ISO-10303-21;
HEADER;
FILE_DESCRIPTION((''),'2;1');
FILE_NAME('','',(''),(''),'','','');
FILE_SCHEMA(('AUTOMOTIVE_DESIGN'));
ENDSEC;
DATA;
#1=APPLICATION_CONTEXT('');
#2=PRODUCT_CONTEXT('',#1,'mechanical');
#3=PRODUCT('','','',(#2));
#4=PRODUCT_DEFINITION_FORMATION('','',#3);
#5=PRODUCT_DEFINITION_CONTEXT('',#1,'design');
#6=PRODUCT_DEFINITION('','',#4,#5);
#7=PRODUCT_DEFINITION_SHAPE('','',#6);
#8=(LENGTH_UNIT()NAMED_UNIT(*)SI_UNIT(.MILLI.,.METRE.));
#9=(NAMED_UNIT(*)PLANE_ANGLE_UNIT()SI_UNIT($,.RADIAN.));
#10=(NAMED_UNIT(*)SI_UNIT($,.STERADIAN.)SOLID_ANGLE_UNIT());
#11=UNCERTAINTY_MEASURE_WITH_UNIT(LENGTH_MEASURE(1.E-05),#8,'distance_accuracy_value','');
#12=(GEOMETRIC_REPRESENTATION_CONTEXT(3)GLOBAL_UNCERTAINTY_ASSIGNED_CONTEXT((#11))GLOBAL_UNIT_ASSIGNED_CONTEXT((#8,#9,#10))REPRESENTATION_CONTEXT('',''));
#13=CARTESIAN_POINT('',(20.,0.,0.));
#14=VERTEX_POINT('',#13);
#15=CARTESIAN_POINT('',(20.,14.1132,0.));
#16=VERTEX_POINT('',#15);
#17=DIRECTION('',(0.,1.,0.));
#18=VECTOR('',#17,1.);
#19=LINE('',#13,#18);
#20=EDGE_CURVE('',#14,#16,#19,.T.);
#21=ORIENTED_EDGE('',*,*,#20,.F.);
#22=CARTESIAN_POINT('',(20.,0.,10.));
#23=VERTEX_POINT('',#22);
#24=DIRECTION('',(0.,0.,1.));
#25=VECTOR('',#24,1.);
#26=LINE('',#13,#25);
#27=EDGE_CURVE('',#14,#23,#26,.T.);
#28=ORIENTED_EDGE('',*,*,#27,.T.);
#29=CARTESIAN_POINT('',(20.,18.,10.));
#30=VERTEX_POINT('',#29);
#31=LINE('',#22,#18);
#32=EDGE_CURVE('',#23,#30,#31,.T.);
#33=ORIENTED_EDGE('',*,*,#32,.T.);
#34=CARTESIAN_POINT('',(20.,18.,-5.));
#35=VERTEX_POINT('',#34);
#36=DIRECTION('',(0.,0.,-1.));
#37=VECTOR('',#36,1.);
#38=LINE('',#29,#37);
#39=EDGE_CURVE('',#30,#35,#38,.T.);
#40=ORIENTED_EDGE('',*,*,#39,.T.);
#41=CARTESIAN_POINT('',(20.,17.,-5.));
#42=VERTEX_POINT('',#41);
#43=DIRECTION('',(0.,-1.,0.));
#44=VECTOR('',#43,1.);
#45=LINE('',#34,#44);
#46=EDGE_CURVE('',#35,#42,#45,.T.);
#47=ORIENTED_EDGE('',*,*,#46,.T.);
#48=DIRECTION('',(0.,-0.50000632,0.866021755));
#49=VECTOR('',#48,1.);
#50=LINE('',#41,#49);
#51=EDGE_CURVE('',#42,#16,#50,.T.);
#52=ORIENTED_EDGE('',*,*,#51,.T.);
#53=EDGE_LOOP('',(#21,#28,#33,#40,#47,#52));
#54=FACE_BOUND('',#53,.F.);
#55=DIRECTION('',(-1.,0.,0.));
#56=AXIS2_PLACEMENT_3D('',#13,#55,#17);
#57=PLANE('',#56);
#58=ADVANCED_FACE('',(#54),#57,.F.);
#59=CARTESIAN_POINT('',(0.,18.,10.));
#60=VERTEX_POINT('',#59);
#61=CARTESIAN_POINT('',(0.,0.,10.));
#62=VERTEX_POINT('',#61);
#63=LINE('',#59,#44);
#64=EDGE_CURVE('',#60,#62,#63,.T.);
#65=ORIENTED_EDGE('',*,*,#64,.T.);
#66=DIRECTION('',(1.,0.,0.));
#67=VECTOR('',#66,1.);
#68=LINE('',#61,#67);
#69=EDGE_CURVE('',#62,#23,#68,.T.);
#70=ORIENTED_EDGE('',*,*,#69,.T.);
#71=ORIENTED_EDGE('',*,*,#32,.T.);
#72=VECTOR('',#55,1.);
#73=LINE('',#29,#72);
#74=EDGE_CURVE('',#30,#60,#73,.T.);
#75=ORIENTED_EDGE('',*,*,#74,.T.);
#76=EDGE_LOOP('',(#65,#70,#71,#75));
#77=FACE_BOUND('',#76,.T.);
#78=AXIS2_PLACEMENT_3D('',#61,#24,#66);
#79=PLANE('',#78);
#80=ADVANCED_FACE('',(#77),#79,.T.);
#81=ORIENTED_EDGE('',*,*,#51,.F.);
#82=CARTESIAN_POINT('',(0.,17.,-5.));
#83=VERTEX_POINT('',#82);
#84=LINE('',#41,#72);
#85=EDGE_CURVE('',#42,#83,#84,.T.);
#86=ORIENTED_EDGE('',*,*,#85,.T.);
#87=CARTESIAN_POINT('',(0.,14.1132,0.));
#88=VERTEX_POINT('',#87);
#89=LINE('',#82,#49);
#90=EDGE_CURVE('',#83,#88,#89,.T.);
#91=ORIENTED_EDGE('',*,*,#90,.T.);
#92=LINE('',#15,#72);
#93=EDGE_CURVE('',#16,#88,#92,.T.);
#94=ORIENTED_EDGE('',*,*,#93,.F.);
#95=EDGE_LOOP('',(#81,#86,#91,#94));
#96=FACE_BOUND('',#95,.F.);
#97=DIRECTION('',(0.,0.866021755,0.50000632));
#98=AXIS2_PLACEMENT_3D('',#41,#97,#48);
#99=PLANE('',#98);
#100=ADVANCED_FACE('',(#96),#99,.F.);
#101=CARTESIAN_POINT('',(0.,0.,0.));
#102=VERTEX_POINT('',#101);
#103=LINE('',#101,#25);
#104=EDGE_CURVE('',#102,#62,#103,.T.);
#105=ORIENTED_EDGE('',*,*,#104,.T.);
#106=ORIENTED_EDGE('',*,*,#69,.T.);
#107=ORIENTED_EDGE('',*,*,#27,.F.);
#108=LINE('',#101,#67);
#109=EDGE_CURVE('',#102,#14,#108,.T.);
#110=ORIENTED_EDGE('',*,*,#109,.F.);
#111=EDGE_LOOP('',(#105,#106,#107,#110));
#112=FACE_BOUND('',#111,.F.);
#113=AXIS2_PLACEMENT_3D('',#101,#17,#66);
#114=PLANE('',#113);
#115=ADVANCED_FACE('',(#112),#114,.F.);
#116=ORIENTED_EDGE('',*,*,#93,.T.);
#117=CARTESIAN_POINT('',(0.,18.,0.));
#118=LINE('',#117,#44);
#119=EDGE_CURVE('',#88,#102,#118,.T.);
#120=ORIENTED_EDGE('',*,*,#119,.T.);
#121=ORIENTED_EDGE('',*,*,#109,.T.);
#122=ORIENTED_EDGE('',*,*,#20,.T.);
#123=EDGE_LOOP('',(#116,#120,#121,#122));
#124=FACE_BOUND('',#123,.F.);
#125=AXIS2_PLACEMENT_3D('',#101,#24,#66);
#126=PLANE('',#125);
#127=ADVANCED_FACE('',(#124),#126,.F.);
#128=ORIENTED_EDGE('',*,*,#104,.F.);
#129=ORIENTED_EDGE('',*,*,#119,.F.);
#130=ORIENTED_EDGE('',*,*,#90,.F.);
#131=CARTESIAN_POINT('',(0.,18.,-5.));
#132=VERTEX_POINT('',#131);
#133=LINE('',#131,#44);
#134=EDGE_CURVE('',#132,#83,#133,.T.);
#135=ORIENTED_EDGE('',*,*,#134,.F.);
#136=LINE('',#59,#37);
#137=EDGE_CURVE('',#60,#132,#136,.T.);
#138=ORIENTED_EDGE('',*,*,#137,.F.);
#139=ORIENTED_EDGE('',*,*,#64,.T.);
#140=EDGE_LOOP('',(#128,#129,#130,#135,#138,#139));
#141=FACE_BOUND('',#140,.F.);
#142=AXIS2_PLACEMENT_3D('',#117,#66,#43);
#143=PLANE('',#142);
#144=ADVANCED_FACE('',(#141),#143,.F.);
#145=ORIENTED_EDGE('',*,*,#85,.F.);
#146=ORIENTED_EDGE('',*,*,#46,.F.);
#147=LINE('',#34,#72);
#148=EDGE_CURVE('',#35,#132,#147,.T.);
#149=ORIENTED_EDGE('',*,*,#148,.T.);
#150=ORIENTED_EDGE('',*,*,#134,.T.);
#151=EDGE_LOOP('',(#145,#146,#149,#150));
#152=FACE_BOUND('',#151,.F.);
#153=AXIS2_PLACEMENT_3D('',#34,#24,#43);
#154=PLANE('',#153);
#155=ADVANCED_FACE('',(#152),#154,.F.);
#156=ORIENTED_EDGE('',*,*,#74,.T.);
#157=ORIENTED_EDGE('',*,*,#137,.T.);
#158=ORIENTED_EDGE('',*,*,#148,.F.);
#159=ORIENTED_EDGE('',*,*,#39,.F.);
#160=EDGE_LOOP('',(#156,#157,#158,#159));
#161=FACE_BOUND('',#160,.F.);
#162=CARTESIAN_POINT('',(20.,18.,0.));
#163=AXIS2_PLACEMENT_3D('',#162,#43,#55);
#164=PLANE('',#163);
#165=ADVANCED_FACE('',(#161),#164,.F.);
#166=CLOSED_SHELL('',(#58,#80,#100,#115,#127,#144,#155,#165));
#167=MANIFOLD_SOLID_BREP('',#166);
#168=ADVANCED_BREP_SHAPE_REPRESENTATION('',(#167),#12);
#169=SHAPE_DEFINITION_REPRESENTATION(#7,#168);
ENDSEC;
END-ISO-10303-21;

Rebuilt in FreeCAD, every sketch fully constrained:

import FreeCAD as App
import Part
import Sketcher

V = App.Vector
Q = App.Units.Quantity

doc = App.newDocument("Part")
body = doc.addObject("PartDesign::Body", "Body")

# Sketch on XY plane
sketch1 = body.newObject("Sketcher::SketchObject", "Sketch")
sketch1.AttachmentSupport = (doc.getObject("XY_Plane"), [""])
sketch1.MapMode = "FlatFace"
sketch1.addGeometry(Part.LineSegment(V(0, 18, 0), V(0, 0, 0)), False)
sketch1.addGeometry(Part.LineSegment(V(0, 0, 0), V(20, 0, 0)), False)
sketch1.addGeometry(Part.LineSegment(V(20, 0, 0), V(20, 18, 0)), False)
sketch1.addGeometry(Part.LineSegment(V(20, 18, 0), V(0, 18, 0)), False)
sketch1.addConstraint(Sketcher.Constraint("Coincident", 0, 2, 1, 1))
sketch1.addConstraint(Sketcher.Constraint("Coincident", 1, 2, 2, 1))
sketch1.addConstraint(Sketcher.Constraint("Coincident", 2, 2, 3, 1))
sketch1.addConstraint(Sketcher.Constraint("Coincident", 3, 2, 0, 1))
sketch1.addConstraint(Sketcher.Constraint("Vertical", 0))
sketch1.addConstraint(Sketcher.Constraint("Horizontal", 1))
sketch1.addConstraint(Sketcher.Constraint("Vertical", 2))
sketch1.addConstraint(Sketcher.Constraint("Horizontal", 3))
sketch1.addConstraint(Sketcher.Constraint("Coincident", 0, 2, -1, 1))
sketch1.addConstraint(Sketcher.Constraint("DistanceX", 1, 1, 1, 2, Q("20 mm")))
sketch1.addConstraint(Sketcher.Constraint("DistanceY", 0, 2, 0, 1, Q("18 mm")))
pad1 = body.newObject("PartDesign::Pad", "Pad")
pad1.Profile = sketch1
pad1.Length = 10

# Sketch on YZ plane
sketch2 = body.newObject("Sketcher::SketchObject", "Sketch001")
sketch2.AttachmentSupport = (doc.getObject("YZ_Plane"), [""])
sketch2.MapMode = "FlatFace"
sketch2.AttachmentOffset = App.Placement(V(0, 0, 20), App.Rotation())
sketch2.addGeometry(Part.LineSegment(V(18, 0, 0), V(14.1, 0, 0)), False)
sketch2.addGeometry(Part.LineSegment(V(14.1, 0, 0), V(17, -5, 0)), False)
sketch2.addGeometry(Part.LineSegment(V(17, -5, 0), V(18, -5, 0)), False)
sketch2.addGeometry(Part.LineSegment(V(18, -5, 0), V(18, 0, 0)), False)
sketch2.addConstraint(Sketcher.Constraint("Coincident", 0, 2, 1, 1))
sketch2.addConstraint(Sketcher.Constraint("Coincident", 1, 2, 2, 1))
sketch2.addConstraint(Sketcher.Constraint("Coincident", 2, 2, 3, 1))
sketch2.addConstraint(Sketcher.Constraint("Coincident", 3, 2, 0, 1))
sketch2.addConstraint(Sketcher.Constraint("Horizontal", 0))
sketch2.addConstraint(Sketcher.Constraint("Horizontal", 2))
sketch2.addConstraint(Sketcher.Constraint("Vertical", 3))
sketch2.addConstraint(Sketcher.Constraint("PointOnObject", 0, 2, -1))
sketch2.addConstraint(Sketcher.Constraint("DistanceX", 2, 1, 2, 2, Q("1 mm")))
sketch2.addConstraint(Sketcher.Constraint("DistanceY", 3, 1, 3, 2, Q("5 mm")))
sketch2.addConstraint(Sketcher.Constraint("Angle", 1, Q("-59.9996 deg")))
sketch2.addConstraint(Sketcher.Constraint("DistanceX", -1, 1, 1, 2, Q("17 mm")))
pad2 = body.newObject("PartDesign::Pad", "Pad001")
pad2.Profile = sketch2
pad2.Length = 20
pad2.Reversed = True

doc.recompute()
